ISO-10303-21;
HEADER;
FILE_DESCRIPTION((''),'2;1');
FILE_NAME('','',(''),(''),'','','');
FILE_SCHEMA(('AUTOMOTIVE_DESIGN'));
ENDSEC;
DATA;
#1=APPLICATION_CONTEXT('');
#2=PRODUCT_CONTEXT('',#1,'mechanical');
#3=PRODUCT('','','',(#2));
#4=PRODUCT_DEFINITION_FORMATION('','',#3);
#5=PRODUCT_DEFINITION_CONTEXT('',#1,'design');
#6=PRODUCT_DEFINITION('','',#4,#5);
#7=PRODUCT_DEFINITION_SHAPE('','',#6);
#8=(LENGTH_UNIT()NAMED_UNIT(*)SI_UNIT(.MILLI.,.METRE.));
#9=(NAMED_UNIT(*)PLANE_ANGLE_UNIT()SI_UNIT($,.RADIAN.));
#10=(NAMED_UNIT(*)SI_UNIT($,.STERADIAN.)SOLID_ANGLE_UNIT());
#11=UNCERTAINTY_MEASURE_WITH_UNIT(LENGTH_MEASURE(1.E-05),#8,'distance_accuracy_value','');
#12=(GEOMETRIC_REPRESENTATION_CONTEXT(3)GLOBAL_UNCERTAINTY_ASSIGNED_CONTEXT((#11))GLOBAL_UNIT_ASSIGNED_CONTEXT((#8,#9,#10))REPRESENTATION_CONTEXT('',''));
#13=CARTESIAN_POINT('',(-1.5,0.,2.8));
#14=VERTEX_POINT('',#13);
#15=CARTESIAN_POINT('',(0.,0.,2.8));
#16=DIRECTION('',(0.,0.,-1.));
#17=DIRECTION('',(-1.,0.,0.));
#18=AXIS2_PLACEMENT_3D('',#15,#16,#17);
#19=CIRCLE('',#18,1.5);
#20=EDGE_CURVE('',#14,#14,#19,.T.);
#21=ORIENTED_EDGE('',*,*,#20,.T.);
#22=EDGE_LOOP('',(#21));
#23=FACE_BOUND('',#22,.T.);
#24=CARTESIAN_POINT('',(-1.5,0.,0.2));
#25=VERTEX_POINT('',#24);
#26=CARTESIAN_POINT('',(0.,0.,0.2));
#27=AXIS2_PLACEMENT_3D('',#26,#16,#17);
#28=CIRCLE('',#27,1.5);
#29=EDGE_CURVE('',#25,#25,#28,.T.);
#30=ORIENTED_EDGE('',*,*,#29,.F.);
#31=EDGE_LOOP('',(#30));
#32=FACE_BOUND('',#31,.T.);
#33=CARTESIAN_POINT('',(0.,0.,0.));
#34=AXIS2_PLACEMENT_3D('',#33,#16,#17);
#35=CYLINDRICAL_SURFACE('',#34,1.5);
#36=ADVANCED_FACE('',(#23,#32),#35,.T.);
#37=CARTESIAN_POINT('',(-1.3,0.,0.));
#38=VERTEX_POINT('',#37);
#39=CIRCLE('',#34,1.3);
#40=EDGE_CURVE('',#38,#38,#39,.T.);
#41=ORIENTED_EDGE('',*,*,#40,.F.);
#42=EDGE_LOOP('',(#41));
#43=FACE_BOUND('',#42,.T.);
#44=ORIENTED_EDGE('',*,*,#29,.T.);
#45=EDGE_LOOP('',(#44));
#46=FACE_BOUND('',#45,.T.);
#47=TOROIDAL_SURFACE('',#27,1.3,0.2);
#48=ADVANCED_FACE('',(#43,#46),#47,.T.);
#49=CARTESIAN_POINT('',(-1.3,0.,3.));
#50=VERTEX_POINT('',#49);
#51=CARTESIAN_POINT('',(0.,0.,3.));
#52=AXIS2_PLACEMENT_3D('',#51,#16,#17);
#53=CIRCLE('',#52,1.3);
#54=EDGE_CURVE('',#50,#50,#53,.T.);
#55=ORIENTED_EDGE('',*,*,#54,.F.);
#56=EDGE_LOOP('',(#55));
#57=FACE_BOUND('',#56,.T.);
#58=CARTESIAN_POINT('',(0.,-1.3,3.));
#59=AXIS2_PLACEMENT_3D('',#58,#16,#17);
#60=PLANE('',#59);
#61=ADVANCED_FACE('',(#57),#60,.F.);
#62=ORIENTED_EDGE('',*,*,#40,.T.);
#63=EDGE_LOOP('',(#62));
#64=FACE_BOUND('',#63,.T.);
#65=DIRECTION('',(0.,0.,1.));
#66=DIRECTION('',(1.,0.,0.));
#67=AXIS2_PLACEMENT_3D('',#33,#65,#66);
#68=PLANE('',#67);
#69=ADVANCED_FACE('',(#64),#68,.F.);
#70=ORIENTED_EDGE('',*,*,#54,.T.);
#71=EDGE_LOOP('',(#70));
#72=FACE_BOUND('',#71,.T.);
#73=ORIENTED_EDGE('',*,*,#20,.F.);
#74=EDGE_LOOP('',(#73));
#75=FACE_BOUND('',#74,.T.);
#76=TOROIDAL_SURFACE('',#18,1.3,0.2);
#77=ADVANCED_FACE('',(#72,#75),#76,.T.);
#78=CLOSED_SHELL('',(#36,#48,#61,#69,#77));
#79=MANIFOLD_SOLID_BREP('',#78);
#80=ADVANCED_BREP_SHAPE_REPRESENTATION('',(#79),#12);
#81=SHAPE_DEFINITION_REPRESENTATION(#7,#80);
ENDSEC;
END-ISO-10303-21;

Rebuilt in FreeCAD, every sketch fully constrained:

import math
import FreeCAD as App
import Part
import Sketcher

V = App.Vector
Q = App.Units.Quantity

doc = App.newDocument("Part")
body = doc.addObject("PartDesign::Body", "Body")

# Sketch on YZ plane
sketch1 = body.newObject("Sketcher::SketchObject", "Sketch")
sketch1.AttachmentSupport = (doc.getObject("YZ_Plane"), [""])
sketch1.MapMode = "FlatFace"
sketch1.addGeometry(Part.LineSegment(V(0, 0, 0), V(0, 3, 0)), False)
sketch1.addGeometry(Part.LineSegment(V(0, 3, 0), V(-1.3, 3, 0)), False)
sketch1.addGeometry(Part.ArcOfCircle(Part.Circle(V(-1.3, 2.8, 0), V(0, 0, 1), 0.2), math.radians(90), math.radians(180)), False)
sketch1.addGeometry(Part.LineSegment(V(-1.5, 2.8, 0), V(-1.5, 0.2, 0)), False)
sketch1.addGeometry(Part.ArcOfCircle(Part.Circle(V(-1.3, 0.2, 0), V(0, 0, 1), 0.2), math.radians(-180), math.radians(-90)), False)
sketch1.addGeometry(Part.LineSegment(V(-1.3, 0, 0), V(0, 0, 0)), False)
sketch1.addConstraint(Sketcher.Constraint("Coincident", 0, 2, 1, 1))
sketch1.addConstraint(Sketcher.Constraint("Tangent", 1, 2, 2, 1))
sketch1.addConstraint(Sketcher.Constraint("Tangent", 2, 2, 3, 1))
sketch1.addConstraint(Sketcher.Constraint("Tangent", 3, 2, 4, 1))
sketch1.addConstraint(Sketcher.Constraint("Tangent", 4, 2, 5, 1))
sketch1.addConstraint(Sketcher.Constraint("Coincident", 5, 2, 0, 1))
sketch1.addConstraint(Sketcher.Constraint("Vertical", 0))
sketch1.addConstraint(Sketcher.Constraint("Horizontal", 1))
sketch1.addConstraint(Sketcher.Constraint("Vertical", 3))
sketch1.addConstraint(Sketcher.Constraint("Horizontal", 5))
sketch1.addConstraint(Sketcher.Constraint("Coincident", 5, 2, -1, 1))
sketch1.addConstraint(Sketcher.Constraint("Equal", 2, 4))
sketch1.addConstraint(Sketcher.Constraint("Radius", 2, Q("0.2 mm")))
sketch1.addConstraint(Sketcher.Constraint("DistanceY", 0, 1, 0, 2, Q("3 mm")))
sketch1.addConstraint(Sketcher.Constraint("DistanceX", 1, 2, 1, 1, Q("1.3 mm")))
revolution = body.newObject("PartDesign::Revolution", "Revolution")
revolution.Profile = sketch1
revolution.ReferenceAxis = (sketch1, ["V_Axis"])
revolution.Angle = 360

doc.recompute()
